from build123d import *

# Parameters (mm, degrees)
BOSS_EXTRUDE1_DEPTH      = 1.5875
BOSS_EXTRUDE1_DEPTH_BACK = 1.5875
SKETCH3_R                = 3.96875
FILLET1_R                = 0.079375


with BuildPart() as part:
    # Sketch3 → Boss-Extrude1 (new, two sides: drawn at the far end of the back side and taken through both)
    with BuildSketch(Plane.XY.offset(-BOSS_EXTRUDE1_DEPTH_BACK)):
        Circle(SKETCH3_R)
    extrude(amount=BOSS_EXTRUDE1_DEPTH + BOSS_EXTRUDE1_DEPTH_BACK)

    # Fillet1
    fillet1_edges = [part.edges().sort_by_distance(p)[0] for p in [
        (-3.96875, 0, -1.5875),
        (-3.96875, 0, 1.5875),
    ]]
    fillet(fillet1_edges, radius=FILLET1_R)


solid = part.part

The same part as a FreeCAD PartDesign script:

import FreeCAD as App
import Part
import Sketcher
Q = App.Units.Quantity


def edges_at(feature, points):
    """Names of the edges that pass closest to the given points."""
    edges = feature.Shape.Edges
    near = lambda p: min(range(len(edges)), key=lambda i: edges[i].distToShape(Part.Vertex(*p))[0])
    return sorted({f"Edge{near(p) + 1}" for p in points})

doc = App.newDocument("Part")
params = doc.addObject("Spreadsheet::Sheet", "Params")
for row, (alias, value) in enumerate([
    ("sketch1_diameter", "0.3125 in"),
    ("pad1_length", "0.0625 in"),
    ("pad1_length2", "0.0625 in"),
    ("fillet_radius", "0.079375 mm"),
], start=1):
    params.set(f"A{row}", alias)
    params.set(f"B{row}", "=" + value)
    params.setAlias(f"B{row}", alias)

body = doc.addObject("PartDesign::Body", "Body")

sketch1 = body.newObject("Sketcher::SketchObject", "Sketch")
sketch1.AttachmentSupport = (doc.getObject("XY_Plane"), [""])
sketch1.MapMode = "FlatFace"
sketch1.addGeometry(Part.Circle(App.Vector(0, 0, 0), App.Vector(0, 0, 1), 3.96875), False)
sketch1.addConstraint(Sketcher.Constraint("Coincident", 0, 3, -1, 1))
sketch1.addConstraint(Sketcher.Constraint("Diameter", 0, Q("0.3125 in")))
sketch1.setExpression("Constraints[1]", "Params.sketch1_diameter")
pad1 = body.newObject("PartDesign::Pad", "Pad")
pad1.Profile = sketch1
pad1.Type = "TwoLengths"
pad1.setExpression("Length", "Params.pad1_length")
pad1.setExpression("Length2", "Params.pad1_length2")
doc.recompute()

fillet = body.newObject("PartDesign::Fillet", "Fillet")
fillet.Base = (pad1, edges_at(pad1, [(-3.969, 0, -1.587), (-3.969, 0, 1.587)]))
fillet.setExpression("Radius", "Params.fillet_radius")

doc.recompute()
